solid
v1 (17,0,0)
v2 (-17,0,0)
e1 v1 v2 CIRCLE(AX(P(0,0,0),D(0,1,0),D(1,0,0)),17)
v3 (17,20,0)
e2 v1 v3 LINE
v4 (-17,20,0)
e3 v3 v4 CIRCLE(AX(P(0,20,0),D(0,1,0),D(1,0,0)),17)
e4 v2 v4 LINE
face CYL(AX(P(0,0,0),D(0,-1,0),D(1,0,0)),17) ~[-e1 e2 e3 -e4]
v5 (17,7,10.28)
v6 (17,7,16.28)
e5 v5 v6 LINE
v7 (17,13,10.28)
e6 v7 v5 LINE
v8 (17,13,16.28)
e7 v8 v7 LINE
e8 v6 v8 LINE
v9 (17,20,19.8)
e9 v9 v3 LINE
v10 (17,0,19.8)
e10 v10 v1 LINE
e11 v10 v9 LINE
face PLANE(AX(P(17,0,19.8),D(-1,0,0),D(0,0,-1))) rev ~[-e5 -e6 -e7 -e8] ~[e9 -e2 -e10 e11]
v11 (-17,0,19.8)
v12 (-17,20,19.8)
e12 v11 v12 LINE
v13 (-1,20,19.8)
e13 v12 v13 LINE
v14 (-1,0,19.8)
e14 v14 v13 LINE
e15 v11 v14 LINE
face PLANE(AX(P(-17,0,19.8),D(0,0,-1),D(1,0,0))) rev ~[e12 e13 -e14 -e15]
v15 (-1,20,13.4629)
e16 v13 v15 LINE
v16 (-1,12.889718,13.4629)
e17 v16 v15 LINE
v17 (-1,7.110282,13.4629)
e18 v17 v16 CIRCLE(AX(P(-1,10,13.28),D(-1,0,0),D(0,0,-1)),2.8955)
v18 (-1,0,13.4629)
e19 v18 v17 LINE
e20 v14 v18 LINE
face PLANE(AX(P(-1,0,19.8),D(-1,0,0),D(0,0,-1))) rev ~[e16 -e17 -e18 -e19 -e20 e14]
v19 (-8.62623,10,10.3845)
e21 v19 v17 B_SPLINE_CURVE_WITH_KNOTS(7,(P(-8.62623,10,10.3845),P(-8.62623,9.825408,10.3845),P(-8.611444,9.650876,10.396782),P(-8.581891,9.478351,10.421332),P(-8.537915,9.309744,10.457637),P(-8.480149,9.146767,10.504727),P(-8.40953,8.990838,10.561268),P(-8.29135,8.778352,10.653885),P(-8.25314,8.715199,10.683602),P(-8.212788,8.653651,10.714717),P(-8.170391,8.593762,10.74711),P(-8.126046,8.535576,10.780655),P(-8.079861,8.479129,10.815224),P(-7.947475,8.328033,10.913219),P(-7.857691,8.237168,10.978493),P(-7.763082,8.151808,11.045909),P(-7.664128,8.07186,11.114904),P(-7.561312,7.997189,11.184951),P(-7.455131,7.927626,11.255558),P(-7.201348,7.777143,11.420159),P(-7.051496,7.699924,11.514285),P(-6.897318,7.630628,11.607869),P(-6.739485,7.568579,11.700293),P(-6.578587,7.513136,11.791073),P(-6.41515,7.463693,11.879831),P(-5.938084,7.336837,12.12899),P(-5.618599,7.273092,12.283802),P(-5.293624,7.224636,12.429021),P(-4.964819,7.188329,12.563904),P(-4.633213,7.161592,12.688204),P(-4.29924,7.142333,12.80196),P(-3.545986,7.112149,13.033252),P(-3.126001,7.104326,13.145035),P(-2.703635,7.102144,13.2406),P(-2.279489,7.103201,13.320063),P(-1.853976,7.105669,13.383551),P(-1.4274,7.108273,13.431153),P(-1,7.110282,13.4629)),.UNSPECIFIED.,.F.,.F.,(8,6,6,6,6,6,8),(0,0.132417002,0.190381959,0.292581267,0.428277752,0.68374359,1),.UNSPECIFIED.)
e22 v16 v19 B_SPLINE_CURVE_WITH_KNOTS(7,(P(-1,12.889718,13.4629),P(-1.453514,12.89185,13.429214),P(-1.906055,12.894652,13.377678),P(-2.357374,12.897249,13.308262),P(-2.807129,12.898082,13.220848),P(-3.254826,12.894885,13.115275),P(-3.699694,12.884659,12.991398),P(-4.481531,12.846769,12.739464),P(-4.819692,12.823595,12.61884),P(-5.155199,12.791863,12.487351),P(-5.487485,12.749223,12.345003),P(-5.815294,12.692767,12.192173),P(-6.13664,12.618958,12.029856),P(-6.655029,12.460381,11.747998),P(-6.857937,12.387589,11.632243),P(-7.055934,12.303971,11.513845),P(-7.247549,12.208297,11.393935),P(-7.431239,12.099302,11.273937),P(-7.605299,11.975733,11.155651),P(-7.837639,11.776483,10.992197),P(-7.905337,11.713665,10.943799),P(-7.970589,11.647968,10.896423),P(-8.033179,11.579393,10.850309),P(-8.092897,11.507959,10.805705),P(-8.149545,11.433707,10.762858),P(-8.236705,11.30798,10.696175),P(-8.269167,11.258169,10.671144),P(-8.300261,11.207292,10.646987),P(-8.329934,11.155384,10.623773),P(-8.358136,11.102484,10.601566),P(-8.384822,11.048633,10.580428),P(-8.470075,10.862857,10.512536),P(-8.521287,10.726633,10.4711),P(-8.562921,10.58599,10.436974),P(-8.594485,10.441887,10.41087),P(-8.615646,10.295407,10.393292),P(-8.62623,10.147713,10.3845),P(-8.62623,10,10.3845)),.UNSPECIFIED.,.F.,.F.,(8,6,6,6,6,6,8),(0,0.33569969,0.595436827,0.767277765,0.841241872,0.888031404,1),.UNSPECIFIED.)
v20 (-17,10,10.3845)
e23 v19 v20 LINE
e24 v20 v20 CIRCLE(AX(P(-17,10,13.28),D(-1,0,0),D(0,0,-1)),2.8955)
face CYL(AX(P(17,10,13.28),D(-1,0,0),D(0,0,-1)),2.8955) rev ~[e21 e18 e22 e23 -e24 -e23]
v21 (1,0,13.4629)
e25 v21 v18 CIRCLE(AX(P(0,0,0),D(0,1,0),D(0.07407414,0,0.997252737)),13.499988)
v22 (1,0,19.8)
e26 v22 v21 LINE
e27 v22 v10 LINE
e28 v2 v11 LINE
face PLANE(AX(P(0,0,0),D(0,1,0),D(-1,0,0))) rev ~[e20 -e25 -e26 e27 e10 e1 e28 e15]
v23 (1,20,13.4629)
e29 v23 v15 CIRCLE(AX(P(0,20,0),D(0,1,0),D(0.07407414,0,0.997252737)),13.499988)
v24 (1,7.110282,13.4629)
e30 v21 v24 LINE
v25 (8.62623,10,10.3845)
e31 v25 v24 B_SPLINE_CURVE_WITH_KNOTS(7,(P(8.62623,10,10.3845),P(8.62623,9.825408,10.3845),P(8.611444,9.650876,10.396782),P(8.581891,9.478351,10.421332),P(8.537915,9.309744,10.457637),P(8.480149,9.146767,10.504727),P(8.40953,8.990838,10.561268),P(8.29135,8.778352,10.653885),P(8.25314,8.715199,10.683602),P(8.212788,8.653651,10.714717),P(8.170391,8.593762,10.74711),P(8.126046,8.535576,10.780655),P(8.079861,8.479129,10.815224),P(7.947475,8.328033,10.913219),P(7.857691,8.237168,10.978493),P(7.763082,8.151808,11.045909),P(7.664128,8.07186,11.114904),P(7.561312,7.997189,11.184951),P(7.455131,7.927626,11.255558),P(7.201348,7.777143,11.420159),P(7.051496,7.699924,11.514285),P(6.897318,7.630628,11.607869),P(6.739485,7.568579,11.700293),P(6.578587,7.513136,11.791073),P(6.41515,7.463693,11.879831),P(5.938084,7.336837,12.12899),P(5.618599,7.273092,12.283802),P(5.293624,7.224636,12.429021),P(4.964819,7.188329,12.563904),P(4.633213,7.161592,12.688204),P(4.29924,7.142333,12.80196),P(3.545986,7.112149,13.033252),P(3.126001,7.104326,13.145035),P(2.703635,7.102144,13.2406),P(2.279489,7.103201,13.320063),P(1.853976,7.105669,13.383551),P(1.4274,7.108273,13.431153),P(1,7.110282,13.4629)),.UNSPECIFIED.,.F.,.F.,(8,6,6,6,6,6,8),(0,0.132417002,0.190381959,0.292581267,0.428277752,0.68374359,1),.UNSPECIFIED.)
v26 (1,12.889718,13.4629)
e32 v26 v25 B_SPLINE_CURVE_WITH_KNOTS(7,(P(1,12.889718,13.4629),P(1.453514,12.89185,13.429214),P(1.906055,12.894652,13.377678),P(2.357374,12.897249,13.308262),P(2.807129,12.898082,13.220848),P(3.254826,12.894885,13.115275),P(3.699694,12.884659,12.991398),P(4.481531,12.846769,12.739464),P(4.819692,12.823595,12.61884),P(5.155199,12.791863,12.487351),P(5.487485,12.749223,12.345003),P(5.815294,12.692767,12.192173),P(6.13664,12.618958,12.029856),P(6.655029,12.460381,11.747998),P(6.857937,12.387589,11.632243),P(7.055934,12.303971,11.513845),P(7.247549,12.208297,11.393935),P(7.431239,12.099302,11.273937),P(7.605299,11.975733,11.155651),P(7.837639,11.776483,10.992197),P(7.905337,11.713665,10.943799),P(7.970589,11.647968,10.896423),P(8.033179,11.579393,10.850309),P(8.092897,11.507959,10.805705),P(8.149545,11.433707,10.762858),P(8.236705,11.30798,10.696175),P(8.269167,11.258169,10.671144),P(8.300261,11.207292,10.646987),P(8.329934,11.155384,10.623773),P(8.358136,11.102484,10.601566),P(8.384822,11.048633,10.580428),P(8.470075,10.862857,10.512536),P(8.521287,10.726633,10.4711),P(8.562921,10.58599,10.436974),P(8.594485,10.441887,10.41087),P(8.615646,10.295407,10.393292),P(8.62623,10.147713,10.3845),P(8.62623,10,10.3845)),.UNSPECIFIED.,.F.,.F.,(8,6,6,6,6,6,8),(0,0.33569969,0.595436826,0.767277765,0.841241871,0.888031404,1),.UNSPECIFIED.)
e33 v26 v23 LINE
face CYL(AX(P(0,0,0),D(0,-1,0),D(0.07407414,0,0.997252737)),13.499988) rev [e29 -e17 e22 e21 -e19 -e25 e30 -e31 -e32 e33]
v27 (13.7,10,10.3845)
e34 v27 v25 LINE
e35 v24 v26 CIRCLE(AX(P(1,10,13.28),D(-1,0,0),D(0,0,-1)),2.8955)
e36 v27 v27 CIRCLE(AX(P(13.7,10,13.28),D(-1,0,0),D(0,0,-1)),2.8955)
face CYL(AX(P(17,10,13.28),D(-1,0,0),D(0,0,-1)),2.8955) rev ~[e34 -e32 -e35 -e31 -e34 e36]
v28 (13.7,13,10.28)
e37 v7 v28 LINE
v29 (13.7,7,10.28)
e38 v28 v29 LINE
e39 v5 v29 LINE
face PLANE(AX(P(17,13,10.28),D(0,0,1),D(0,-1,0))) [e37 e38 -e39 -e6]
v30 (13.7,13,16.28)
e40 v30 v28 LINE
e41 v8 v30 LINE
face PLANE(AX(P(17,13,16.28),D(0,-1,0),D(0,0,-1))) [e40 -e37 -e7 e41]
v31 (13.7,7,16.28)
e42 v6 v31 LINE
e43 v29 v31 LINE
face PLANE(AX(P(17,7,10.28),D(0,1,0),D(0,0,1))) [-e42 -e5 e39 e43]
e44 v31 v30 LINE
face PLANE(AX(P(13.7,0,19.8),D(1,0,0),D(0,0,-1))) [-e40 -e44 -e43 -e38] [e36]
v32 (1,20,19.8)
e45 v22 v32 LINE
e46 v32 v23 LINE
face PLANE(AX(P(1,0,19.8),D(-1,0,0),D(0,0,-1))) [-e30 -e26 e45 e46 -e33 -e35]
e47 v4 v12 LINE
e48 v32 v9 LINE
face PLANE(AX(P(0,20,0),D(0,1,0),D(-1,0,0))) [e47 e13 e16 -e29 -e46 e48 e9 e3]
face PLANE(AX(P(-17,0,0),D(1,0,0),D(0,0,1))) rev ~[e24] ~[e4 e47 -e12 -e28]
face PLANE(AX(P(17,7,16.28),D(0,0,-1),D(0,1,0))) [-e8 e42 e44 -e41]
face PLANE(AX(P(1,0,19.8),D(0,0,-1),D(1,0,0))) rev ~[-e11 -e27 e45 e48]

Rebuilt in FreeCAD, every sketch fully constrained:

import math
import FreeCAD as App
import Part
import Sketcher
Q = App.Units.Quantity

doc = App.newDocument("Part")
body = doc.addObject("PartDesign::Body", "Body")

sketch1 = body.newObject("Sketcher::SketchObject", "Sketch")
sketch1.AttachmentSupport = (doc.getObject("XZ_Plane"), [""])
sketch1.MapMode = "FlatFace"
sketch1.addGeometry([
    Part.ArcOfCircle(Part.Circle(App.Vector(0, 0, 0), App.Vector(0, 0, 1), 13.5), math.radians(94), math.radians(446)),
    Part.LineSegment(App.Vector(1, 13.5, 0), App.Vector(1, 19.8, 0)),
    Part.LineSegment(App.Vector(1, 19.8, 0), App.Vector(17, 19.8, 0)),
    Part.LineSegment(App.Vector(17, 19.8, 0), App.Vector(17, 0, 0)),
    Part.ArcOfCircle(Part.Circle(App.Vector(0, 0, 0), App.Vector(0, 0, 1), 17), math.radians(180), math.radians(360)),
    Part.LineSegment(App.Vector(-17, 0, 0), App.Vector(-17, 19.8, 0)),
    Part.LineSegment(App.Vector(-17, 19.8, 0), App.Vector(-1, 19.8, 0)),
    Part.LineSegment(App.Vector(-1, 19.8, 0), App.Vector(-1, 13.5, 0)),
], False)
sketch1.addConstraint([
    Sketcher.Constraint("Coincident", 0, 2, 1, 1),
    Sketcher.Constraint("Coincident", 1, 2, 2, 1),
    Sketcher.Constraint("Coincident", 2, 2, 3, 1),
    Sketcher.Constraint("Tangent", 3, 2, 4, 2),
    Sketcher.Constraint("Tangent", 4, 1, 5, 1),
    Sketcher.Constraint("Coincident", 5, 2, 6, 1),
    Sketcher.Constraint("Coincident", 6, 2, 7, 1),
    Sketcher.Constraint("Coincident", 7, 2, 0, 1),
    Sketcher.Constraint("Vertical", 1),
    Sketcher.Constraint("Horizontal", 2),
    Sketcher.Constraint("Vertical", 3),
    Sketcher.Constraint("Vertical", 5),
    Sketcher.Constraint("Horizontal", 6),
    Sketcher.Constraint("Vertical", 7),
    Sketcher.Constraint("Coincident", 0, 3, -1, 1),
    Sketcher.Constraint("Coincident", 4, 3, -1, 1),
    Sketcher.Constraint("Symmetric", 1, 2, 6, 2, -2),
    Sketcher.Constraint("Radius", 4, Q("17 mm")),
    Sketcher.Constraint("Radius", 0, Q("13.5 mm")),
    Sketcher.Constraint("DistanceX", 2, 1, 2, 2, Q("16 mm")),
    Sketcher.Constraint("DistanceY", 3, 2, 3, 1, Q("19.8 mm")),
])
pad1 = body.newObject("PartDesign::Pad", "Pad")
pad1.Profile = sketch1
pad1.Length = 20
pad1.Reversed = True

sketch2 = body.newObject("Sketcher::SketchObject", "Sketch001")
sketch2.AttachmentSupport = (doc.getObject("YZ_Plane"), [""])
sketch2.MapMode = "FlatFace"
sketch2.AttachmentOffset = App.Placement(App.Vector(0, 0, 17), App.Rotation())
sketch2.addGeometry(Part.Circle(App.Vector(10, 13.3, 0), App.Vector(0, 0, 1), 2.9), False)
sketch2.addConstraint([
    Sketcher.Constraint("Diameter", 0, Q("5.791 mm")),
    Sketcher.Constraint("DistanceX", -1, 1, 0, 3, Q("10 mm")),
    Sketcher.Constraint("DistanceY", -1, 1, 0, 3, Q("13.28 mm")),
])
doc.recompute()
hole = body.newObject("PartDesign::Hole", "Hole")
hole.Profile = sketch2
hole.ThreadType = "None"
hole.Diameter = 5.791
hole.DepthType = "ThroughAll"

sketch3 = body.newObject("Sketcher::SketchObject", "Sketch002")
sketch3.AttachmentSupport = (doc.getObject("YZ_Plane"), [""])
sketch3.MapMode = "FlatFace"
sketch3.AttachmentOffset = App.Placement(App.Vector(0, 0, 17), App.Rotation())
sketch3.addGeometry([
    Part.LineSegment(App.Vector(13, 10, 0), App.Vector(13, 16, 0)),
    Part.LineSegment(App.Vector(13, 16, 0), App.Vector(7, 16, 0)),
    Part.LineSegment(App.Vector(7, 16, 0), App.Vector(7, 10, 0)),
    Part.LineSegment(App.Vector(7, 10, 0), App.Vector(13, 10, 0)),
], False)
sketch3.addConstraint([
    Sketcher.Constraint("Coincident", 0, 2, 1, 1),
    Sketcher.Constraint("Coincident", 1, 2, 2, 1),
    Sketcher.Constraint("Coincident", 2, 2, 3, 1),
    Sketcher.Constraint("Coincident", 3, 2, 0, 1),
    Sketcher.Constraint("Vertical", 0),
    Sketcher.Constraint("Horizontal", 1),
    Sketcher.Constraint("Vertical", 2),
    Sketcher.Constraint("Horizontal", 3),
    Sketcher.Constraint("Equal", 3, 0),
    Sketcher.Constraint("DistanceX", 1, 2, 1, 1, Q("6 mm")),
    Sketcher.Constraint("DistanceX", -1, 1, 0, 2, Q("13 mm")),
    Sketcher.Constraint("DistanceY", -1, 1, 0, 2, Q("16.28 mm")),
])
pocket1 = body.newObject("PartDesign::Pocket", "Pocket")
pocket1.Profile = sketch3
pocket1.Length = 3.3

doc.recompute()
